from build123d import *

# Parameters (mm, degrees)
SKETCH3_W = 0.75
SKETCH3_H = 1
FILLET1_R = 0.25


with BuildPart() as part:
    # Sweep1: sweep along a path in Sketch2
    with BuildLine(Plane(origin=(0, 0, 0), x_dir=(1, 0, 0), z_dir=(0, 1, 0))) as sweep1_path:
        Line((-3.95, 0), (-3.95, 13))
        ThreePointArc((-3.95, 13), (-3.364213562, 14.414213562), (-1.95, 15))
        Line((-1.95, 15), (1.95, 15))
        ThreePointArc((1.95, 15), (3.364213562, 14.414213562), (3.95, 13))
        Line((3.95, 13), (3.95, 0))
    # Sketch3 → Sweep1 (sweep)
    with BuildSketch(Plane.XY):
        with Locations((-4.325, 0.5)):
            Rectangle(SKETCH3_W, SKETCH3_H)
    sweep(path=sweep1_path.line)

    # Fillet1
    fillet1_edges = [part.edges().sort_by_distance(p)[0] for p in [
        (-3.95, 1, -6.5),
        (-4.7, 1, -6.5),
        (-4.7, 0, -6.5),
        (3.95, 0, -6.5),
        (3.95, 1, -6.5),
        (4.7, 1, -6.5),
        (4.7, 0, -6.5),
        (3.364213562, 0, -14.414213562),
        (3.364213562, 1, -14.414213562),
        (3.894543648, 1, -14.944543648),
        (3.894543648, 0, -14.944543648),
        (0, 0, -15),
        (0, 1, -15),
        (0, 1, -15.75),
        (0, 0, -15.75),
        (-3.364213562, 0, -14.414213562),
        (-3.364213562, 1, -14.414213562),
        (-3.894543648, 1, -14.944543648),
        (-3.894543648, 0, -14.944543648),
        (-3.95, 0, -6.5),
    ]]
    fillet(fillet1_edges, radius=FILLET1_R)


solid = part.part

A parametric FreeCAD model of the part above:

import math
import FreeCAD as App
import Part
import Sketcher

V = App.Vector
Q = App.Units.Quantity


def edges_at(feature, points):
    """Names of the edges that pass closest to the given points."""
    edges = feature.Shape.Edges
    near = lambda p: min(range(len(edges)), key=lambda i: edges[i].distToShape(Part.Vertex(*p))[0])
    return sorted({f"Edge{near(p) + 1}" for p in points})

doc = App.newDocument("Part")
body = doc.addObject("PartDesign::Body", "Body")

sketch1 = body.newObject("Sketcher::SketchObject", "Sketch")
sketch1.AttachmentSupport = (doc.getObject("XY_Plane"), [""])
sketch1.MapMode = "FlatFace"
sketch1.addGeometry([
    Part.LineSegment(V(-4.7, 1, 0), V(-4.7, 0, 0)),
    Part.LineSegment(V(-4.7, 0, 0), V(-3.95, 0, 0)),
    Part.LineSegment(V(-3.95, 0, 0), V(-3.95, 1, 0)),
    Part.LineSegment(V(-3.95, 1, 0), V(-4.7, 1, 0)),
], False)
sketch1.addConstraint([
    Sketcher.Constraint("Coincident", 0, 2, 1, 1),
    Sketcher.Constraint("Coincident", 1, 2, 2, 1),
    Sketcher.Constraint("Coincident", 2, 2, 3, 1),
    Sketcher.Constraint("Coincident", 3, 2, 0, 1),
    Sketcher.Constraint("Vertical", 0),
    Sketcher.Constraint("Horizontal", 1),
    Sketcher.Constraint("Vertical", 2),
    Sketcher.Constraint("Horizontal", 3),
    Sketcher.Constraint("PointOnObject", 0, 2, -1),
    Sketcher.Constraint("DistanceY", 0, 2, 0, 1, Q("1 mm")),
    Sketcher.Constraint("DistanceX", 1, 1, 1, 2, Q("0.75 mm")),
    Sketcher.Constraint("DistanceX", 0, 2, -1, 1, Q("4.7 mm")),
])

sketch2 = body.newObject("Sketcher::SketchObject", "Sketch001")
sketch2.AttachmentSupport = (doc.getObject("XZ_Plane"), [""])
sketch2.MapMode = "FlatFace"
sketch2.addGeometry([
    Part.LineSegment(V(-3.95, 0, 0), V(-3.95, -13, 0)),
    Part.ArcOfCircle(Part.Circle(V(-1.95, -13, 0), V(0, 0, 1), 2), math.radians(-180), math.radians(-90)),
    Part.LineSegment(V(-1.95, -15, 0), V(1.95, -15, 0)),
    Part.ArcOfCircle(Part.Circle(V(1.95, -13, 0), V(0, 0, 1), 2), math.radians(-90), math.radians(0)),
    Part.LineSegment(V(3.95, -13, 0), V(3.95, 0, 0)),
], False)
sketch2.addConstraint([
    Sketcher.Constraint("Tangent", 0, 2, 1, 1),
    Sketcher.Constraint("Tangent", 1, 2, 2, 1),
    Sketcher.Constraint("Tangent", 2, 2, 3, 1),
    Sketcher.Constraint("Tangent", 3, 2, 4, 1),
    Sketcher.Constraint("Vertical", 0),
    Sketcher.Constraint("Horizontal", 2),
    Sketcher.Constraint("Vertical", 4),
    Sketcher.Constraint("Equal", 1, 3),
    Sketcher.Constraint("Symmetric", 0, 1, 4, 2, -1, 1),
    Sketcher.Constraint("PointOnObject", 0, 1, -1),
    Sketcher.Constraint("Radius", 1, Q("2 mm")),
    Sketcher.Constraint("DistanceY", 0, 2, 0, 1, Q("13 mm")),
    Sketcher.Constraint("DistanceX", 2, 1, 2, 2, Q("3.9 mm")),
])
doc.recompute()

additivepipe = body.newObject("PartDesign::AdditivePipe", "AdditivePipe")
additivepipe.Profile = sketch1
additivepipe.Spine = (sketch2, ["Edge1", "Edge2", "Edge3", "Edge4", "Edge5"])
doc.recompute()

fillet = body.newObject("PartDesign::Fillet", "Fillet")
fillet.Base = (additivepipe, edges_at(additivepipe, [
    (-3.95, 1, -6.5),
    (-4.7, 1, -6.5),
    (-4.7, 0, -6.5),
    (3.95, 0, -6.5),
    (3.95, 1, -6.5),
    (4.7, 1, -6.5),
    (4.7, 0, -6.5),
    (3.364, 0, -14.414),
    (3.364, 1, -14.414),
    (3.895, 1, -14.945),
    (3.895, 0, -14.945),
    (0, 0, -15),
    (0, 1, -15),
    (0, 1, -15.75),
    (0, 0, -15.75),
    (-3.364, 0, -14.414),
    (-3.364, 1, -14.414),
    (-3.895, 1, -14.945),
    (-3.895, 0, -14.945),
    (-3.95, 0, -6.5),
]))
fillet.Radius = 0.25

doc.recompute()
